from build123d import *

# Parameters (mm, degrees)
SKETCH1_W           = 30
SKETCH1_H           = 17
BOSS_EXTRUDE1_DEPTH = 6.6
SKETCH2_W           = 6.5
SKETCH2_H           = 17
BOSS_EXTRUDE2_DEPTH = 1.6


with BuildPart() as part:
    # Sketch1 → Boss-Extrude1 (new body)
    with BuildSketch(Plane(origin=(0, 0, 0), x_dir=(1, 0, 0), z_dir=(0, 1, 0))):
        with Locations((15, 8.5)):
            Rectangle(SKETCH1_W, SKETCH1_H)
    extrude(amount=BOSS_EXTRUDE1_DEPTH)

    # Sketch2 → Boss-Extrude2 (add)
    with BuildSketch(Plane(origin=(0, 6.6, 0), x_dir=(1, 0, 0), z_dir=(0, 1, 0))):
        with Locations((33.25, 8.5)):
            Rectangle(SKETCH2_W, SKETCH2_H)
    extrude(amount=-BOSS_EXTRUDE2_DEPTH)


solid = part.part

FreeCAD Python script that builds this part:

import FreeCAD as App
import Part
import Sketcher
from FreeCAD import Vector

doc = App.newDocument("Part")
body = doc.addObject("PartDesign::Body", "Body")

sketch1 = body.newObject("Sketcher::SketchObject", "Sketch")
sketch1.AttachmentSupport = (doc.getObject("XZ_Plane"), [""])
sketch1.MapMode = "FlatFace"
sketch1.addGeometry(Part.LineSegment(Vector(0, -17, 0), Vector(0, 0, 0)), False)
sketch1.addGeometry(Part.LineSegment(Vector(0, 0, 0), Vector(30, 0, 0)), False)
sketch1.addGeometry(Part.LineSegment(Vector(30, 0, 0), Vector(30, -17, 0)), False)
sketch1.addGeometry(Part.LineSegment(Vector(30, -17, 0), Vector(0, -17, 0)), False)
sketch1.addConstraint(Sketcher.Constraint("Coincident", 0, 2, 1, 1))
sketch1.addConstraint(Sketcher.Constraint("Coincident", 1, 2, 2, 1))
sketch1.addConstraint(Sketcher.Constraint("Coincident", 2, 2, 3, 1))
sketch1.addConstraint(Sketcher.Constraint("Coincident", 3, 2, 0, 1))
sketch1.addConstraint(Sketcher.Constraint("Vertical", 0))
sketch1.addConstraint(Sketcher.Constraint("Horizontal", 1))
sketch1.addConstraint(Sketcher.Constraint("Vertical", 2))
sketch1.addConstraint(Sketcher.Constraint("Horizontal", 3))
sketch1.addConstraint(Sketcher.Constraint("Coincident", 0, 2, -1, 1))
sketch1.addConstraint(Sketcher.Constraint("DistanceX", 1, 1, 1, 2, 30.0))
sketch1.addConstraint(Sketcher.Constraint("DistanceY", 0, 1, 0, 2, 17.0))
pad1 = body.newObject("PartDesign::Pad", "Pad")
pad1.Profile = sketch1
pad1.Length = 6.6
pad1.Reversed = True

sketch2 = body.newObject("Sketcher::SketchObject", "Sketch001")
sketch2.AttachmentSupport = (doc.getObject("XZ_Plane"), [""])
sketch2.MapMode = "FlatFace"
sketch2.AttachmentOffset = App.Placement(Vector(0, 0, -6.6), App.Rotation())
sketch2.addGeometry(Part.LineSegment(Vector(30, -17, 0), Vector(30, 0, 0)), False)
sketch2.addGeometry(Part.LineSegment(Vector(30, 0, 0), Vector(36, 0, 0)), False)
sketch2.addGeometry(Part.LineSegment(Vector(36, 0, 0), Vector(36, -17, 0)), False)
sketch2.addGeometry(Part.LineSegment(Vector(36, -17, 0), Vector(30, -17, 0)), False)
sketch2.addConstraint(Sketcher.Constraint("Coincident", 0, 2, 1, 1))
sketch2.addConstraint(Sketcher.Constraint("Coincident", 1, 2, 2, 1))
sketch2.addConstraint(Sketcher.Constraint("Coincident", 2, 2, 3, 1))
sketch2.addConstraint(Sketcher.Constraint("Coincident", 3, 2, 0, 1))
sketch2.addConstraint(Sketcher.Constraint("Vertical", 0))
sketch2.addConstraint(Sketcher.Constraint("Horizontal", 1))
sketch2.addConstraint(Sketcher.Constraint("Vertical", 2))
sketch2.addConstraint(Sketcher.Constraint("Horizontal", 3))
sketch2.addConstraint(Sketcher.Constraint("PointOnObject", 0, 2, -1))
sketch2.addConstraint(Sketcher.Constraint("DistanceY", 0, 1, 0, 2, 17.0))
sketch2.addConstraint(Sketcher.Constraint("DistanceX", 1, 1, 1, 2, 6.5))
sketch2.addConstraint(Sketcher.Constraint("DistanceX", -1, 1, 0, 2, 30.0))
pad2 = body.newObject("PartDesign::Pad", "Pad001")
pad2.Profile = sketch2
pad2.Length = 1.6

doc.recompute()
